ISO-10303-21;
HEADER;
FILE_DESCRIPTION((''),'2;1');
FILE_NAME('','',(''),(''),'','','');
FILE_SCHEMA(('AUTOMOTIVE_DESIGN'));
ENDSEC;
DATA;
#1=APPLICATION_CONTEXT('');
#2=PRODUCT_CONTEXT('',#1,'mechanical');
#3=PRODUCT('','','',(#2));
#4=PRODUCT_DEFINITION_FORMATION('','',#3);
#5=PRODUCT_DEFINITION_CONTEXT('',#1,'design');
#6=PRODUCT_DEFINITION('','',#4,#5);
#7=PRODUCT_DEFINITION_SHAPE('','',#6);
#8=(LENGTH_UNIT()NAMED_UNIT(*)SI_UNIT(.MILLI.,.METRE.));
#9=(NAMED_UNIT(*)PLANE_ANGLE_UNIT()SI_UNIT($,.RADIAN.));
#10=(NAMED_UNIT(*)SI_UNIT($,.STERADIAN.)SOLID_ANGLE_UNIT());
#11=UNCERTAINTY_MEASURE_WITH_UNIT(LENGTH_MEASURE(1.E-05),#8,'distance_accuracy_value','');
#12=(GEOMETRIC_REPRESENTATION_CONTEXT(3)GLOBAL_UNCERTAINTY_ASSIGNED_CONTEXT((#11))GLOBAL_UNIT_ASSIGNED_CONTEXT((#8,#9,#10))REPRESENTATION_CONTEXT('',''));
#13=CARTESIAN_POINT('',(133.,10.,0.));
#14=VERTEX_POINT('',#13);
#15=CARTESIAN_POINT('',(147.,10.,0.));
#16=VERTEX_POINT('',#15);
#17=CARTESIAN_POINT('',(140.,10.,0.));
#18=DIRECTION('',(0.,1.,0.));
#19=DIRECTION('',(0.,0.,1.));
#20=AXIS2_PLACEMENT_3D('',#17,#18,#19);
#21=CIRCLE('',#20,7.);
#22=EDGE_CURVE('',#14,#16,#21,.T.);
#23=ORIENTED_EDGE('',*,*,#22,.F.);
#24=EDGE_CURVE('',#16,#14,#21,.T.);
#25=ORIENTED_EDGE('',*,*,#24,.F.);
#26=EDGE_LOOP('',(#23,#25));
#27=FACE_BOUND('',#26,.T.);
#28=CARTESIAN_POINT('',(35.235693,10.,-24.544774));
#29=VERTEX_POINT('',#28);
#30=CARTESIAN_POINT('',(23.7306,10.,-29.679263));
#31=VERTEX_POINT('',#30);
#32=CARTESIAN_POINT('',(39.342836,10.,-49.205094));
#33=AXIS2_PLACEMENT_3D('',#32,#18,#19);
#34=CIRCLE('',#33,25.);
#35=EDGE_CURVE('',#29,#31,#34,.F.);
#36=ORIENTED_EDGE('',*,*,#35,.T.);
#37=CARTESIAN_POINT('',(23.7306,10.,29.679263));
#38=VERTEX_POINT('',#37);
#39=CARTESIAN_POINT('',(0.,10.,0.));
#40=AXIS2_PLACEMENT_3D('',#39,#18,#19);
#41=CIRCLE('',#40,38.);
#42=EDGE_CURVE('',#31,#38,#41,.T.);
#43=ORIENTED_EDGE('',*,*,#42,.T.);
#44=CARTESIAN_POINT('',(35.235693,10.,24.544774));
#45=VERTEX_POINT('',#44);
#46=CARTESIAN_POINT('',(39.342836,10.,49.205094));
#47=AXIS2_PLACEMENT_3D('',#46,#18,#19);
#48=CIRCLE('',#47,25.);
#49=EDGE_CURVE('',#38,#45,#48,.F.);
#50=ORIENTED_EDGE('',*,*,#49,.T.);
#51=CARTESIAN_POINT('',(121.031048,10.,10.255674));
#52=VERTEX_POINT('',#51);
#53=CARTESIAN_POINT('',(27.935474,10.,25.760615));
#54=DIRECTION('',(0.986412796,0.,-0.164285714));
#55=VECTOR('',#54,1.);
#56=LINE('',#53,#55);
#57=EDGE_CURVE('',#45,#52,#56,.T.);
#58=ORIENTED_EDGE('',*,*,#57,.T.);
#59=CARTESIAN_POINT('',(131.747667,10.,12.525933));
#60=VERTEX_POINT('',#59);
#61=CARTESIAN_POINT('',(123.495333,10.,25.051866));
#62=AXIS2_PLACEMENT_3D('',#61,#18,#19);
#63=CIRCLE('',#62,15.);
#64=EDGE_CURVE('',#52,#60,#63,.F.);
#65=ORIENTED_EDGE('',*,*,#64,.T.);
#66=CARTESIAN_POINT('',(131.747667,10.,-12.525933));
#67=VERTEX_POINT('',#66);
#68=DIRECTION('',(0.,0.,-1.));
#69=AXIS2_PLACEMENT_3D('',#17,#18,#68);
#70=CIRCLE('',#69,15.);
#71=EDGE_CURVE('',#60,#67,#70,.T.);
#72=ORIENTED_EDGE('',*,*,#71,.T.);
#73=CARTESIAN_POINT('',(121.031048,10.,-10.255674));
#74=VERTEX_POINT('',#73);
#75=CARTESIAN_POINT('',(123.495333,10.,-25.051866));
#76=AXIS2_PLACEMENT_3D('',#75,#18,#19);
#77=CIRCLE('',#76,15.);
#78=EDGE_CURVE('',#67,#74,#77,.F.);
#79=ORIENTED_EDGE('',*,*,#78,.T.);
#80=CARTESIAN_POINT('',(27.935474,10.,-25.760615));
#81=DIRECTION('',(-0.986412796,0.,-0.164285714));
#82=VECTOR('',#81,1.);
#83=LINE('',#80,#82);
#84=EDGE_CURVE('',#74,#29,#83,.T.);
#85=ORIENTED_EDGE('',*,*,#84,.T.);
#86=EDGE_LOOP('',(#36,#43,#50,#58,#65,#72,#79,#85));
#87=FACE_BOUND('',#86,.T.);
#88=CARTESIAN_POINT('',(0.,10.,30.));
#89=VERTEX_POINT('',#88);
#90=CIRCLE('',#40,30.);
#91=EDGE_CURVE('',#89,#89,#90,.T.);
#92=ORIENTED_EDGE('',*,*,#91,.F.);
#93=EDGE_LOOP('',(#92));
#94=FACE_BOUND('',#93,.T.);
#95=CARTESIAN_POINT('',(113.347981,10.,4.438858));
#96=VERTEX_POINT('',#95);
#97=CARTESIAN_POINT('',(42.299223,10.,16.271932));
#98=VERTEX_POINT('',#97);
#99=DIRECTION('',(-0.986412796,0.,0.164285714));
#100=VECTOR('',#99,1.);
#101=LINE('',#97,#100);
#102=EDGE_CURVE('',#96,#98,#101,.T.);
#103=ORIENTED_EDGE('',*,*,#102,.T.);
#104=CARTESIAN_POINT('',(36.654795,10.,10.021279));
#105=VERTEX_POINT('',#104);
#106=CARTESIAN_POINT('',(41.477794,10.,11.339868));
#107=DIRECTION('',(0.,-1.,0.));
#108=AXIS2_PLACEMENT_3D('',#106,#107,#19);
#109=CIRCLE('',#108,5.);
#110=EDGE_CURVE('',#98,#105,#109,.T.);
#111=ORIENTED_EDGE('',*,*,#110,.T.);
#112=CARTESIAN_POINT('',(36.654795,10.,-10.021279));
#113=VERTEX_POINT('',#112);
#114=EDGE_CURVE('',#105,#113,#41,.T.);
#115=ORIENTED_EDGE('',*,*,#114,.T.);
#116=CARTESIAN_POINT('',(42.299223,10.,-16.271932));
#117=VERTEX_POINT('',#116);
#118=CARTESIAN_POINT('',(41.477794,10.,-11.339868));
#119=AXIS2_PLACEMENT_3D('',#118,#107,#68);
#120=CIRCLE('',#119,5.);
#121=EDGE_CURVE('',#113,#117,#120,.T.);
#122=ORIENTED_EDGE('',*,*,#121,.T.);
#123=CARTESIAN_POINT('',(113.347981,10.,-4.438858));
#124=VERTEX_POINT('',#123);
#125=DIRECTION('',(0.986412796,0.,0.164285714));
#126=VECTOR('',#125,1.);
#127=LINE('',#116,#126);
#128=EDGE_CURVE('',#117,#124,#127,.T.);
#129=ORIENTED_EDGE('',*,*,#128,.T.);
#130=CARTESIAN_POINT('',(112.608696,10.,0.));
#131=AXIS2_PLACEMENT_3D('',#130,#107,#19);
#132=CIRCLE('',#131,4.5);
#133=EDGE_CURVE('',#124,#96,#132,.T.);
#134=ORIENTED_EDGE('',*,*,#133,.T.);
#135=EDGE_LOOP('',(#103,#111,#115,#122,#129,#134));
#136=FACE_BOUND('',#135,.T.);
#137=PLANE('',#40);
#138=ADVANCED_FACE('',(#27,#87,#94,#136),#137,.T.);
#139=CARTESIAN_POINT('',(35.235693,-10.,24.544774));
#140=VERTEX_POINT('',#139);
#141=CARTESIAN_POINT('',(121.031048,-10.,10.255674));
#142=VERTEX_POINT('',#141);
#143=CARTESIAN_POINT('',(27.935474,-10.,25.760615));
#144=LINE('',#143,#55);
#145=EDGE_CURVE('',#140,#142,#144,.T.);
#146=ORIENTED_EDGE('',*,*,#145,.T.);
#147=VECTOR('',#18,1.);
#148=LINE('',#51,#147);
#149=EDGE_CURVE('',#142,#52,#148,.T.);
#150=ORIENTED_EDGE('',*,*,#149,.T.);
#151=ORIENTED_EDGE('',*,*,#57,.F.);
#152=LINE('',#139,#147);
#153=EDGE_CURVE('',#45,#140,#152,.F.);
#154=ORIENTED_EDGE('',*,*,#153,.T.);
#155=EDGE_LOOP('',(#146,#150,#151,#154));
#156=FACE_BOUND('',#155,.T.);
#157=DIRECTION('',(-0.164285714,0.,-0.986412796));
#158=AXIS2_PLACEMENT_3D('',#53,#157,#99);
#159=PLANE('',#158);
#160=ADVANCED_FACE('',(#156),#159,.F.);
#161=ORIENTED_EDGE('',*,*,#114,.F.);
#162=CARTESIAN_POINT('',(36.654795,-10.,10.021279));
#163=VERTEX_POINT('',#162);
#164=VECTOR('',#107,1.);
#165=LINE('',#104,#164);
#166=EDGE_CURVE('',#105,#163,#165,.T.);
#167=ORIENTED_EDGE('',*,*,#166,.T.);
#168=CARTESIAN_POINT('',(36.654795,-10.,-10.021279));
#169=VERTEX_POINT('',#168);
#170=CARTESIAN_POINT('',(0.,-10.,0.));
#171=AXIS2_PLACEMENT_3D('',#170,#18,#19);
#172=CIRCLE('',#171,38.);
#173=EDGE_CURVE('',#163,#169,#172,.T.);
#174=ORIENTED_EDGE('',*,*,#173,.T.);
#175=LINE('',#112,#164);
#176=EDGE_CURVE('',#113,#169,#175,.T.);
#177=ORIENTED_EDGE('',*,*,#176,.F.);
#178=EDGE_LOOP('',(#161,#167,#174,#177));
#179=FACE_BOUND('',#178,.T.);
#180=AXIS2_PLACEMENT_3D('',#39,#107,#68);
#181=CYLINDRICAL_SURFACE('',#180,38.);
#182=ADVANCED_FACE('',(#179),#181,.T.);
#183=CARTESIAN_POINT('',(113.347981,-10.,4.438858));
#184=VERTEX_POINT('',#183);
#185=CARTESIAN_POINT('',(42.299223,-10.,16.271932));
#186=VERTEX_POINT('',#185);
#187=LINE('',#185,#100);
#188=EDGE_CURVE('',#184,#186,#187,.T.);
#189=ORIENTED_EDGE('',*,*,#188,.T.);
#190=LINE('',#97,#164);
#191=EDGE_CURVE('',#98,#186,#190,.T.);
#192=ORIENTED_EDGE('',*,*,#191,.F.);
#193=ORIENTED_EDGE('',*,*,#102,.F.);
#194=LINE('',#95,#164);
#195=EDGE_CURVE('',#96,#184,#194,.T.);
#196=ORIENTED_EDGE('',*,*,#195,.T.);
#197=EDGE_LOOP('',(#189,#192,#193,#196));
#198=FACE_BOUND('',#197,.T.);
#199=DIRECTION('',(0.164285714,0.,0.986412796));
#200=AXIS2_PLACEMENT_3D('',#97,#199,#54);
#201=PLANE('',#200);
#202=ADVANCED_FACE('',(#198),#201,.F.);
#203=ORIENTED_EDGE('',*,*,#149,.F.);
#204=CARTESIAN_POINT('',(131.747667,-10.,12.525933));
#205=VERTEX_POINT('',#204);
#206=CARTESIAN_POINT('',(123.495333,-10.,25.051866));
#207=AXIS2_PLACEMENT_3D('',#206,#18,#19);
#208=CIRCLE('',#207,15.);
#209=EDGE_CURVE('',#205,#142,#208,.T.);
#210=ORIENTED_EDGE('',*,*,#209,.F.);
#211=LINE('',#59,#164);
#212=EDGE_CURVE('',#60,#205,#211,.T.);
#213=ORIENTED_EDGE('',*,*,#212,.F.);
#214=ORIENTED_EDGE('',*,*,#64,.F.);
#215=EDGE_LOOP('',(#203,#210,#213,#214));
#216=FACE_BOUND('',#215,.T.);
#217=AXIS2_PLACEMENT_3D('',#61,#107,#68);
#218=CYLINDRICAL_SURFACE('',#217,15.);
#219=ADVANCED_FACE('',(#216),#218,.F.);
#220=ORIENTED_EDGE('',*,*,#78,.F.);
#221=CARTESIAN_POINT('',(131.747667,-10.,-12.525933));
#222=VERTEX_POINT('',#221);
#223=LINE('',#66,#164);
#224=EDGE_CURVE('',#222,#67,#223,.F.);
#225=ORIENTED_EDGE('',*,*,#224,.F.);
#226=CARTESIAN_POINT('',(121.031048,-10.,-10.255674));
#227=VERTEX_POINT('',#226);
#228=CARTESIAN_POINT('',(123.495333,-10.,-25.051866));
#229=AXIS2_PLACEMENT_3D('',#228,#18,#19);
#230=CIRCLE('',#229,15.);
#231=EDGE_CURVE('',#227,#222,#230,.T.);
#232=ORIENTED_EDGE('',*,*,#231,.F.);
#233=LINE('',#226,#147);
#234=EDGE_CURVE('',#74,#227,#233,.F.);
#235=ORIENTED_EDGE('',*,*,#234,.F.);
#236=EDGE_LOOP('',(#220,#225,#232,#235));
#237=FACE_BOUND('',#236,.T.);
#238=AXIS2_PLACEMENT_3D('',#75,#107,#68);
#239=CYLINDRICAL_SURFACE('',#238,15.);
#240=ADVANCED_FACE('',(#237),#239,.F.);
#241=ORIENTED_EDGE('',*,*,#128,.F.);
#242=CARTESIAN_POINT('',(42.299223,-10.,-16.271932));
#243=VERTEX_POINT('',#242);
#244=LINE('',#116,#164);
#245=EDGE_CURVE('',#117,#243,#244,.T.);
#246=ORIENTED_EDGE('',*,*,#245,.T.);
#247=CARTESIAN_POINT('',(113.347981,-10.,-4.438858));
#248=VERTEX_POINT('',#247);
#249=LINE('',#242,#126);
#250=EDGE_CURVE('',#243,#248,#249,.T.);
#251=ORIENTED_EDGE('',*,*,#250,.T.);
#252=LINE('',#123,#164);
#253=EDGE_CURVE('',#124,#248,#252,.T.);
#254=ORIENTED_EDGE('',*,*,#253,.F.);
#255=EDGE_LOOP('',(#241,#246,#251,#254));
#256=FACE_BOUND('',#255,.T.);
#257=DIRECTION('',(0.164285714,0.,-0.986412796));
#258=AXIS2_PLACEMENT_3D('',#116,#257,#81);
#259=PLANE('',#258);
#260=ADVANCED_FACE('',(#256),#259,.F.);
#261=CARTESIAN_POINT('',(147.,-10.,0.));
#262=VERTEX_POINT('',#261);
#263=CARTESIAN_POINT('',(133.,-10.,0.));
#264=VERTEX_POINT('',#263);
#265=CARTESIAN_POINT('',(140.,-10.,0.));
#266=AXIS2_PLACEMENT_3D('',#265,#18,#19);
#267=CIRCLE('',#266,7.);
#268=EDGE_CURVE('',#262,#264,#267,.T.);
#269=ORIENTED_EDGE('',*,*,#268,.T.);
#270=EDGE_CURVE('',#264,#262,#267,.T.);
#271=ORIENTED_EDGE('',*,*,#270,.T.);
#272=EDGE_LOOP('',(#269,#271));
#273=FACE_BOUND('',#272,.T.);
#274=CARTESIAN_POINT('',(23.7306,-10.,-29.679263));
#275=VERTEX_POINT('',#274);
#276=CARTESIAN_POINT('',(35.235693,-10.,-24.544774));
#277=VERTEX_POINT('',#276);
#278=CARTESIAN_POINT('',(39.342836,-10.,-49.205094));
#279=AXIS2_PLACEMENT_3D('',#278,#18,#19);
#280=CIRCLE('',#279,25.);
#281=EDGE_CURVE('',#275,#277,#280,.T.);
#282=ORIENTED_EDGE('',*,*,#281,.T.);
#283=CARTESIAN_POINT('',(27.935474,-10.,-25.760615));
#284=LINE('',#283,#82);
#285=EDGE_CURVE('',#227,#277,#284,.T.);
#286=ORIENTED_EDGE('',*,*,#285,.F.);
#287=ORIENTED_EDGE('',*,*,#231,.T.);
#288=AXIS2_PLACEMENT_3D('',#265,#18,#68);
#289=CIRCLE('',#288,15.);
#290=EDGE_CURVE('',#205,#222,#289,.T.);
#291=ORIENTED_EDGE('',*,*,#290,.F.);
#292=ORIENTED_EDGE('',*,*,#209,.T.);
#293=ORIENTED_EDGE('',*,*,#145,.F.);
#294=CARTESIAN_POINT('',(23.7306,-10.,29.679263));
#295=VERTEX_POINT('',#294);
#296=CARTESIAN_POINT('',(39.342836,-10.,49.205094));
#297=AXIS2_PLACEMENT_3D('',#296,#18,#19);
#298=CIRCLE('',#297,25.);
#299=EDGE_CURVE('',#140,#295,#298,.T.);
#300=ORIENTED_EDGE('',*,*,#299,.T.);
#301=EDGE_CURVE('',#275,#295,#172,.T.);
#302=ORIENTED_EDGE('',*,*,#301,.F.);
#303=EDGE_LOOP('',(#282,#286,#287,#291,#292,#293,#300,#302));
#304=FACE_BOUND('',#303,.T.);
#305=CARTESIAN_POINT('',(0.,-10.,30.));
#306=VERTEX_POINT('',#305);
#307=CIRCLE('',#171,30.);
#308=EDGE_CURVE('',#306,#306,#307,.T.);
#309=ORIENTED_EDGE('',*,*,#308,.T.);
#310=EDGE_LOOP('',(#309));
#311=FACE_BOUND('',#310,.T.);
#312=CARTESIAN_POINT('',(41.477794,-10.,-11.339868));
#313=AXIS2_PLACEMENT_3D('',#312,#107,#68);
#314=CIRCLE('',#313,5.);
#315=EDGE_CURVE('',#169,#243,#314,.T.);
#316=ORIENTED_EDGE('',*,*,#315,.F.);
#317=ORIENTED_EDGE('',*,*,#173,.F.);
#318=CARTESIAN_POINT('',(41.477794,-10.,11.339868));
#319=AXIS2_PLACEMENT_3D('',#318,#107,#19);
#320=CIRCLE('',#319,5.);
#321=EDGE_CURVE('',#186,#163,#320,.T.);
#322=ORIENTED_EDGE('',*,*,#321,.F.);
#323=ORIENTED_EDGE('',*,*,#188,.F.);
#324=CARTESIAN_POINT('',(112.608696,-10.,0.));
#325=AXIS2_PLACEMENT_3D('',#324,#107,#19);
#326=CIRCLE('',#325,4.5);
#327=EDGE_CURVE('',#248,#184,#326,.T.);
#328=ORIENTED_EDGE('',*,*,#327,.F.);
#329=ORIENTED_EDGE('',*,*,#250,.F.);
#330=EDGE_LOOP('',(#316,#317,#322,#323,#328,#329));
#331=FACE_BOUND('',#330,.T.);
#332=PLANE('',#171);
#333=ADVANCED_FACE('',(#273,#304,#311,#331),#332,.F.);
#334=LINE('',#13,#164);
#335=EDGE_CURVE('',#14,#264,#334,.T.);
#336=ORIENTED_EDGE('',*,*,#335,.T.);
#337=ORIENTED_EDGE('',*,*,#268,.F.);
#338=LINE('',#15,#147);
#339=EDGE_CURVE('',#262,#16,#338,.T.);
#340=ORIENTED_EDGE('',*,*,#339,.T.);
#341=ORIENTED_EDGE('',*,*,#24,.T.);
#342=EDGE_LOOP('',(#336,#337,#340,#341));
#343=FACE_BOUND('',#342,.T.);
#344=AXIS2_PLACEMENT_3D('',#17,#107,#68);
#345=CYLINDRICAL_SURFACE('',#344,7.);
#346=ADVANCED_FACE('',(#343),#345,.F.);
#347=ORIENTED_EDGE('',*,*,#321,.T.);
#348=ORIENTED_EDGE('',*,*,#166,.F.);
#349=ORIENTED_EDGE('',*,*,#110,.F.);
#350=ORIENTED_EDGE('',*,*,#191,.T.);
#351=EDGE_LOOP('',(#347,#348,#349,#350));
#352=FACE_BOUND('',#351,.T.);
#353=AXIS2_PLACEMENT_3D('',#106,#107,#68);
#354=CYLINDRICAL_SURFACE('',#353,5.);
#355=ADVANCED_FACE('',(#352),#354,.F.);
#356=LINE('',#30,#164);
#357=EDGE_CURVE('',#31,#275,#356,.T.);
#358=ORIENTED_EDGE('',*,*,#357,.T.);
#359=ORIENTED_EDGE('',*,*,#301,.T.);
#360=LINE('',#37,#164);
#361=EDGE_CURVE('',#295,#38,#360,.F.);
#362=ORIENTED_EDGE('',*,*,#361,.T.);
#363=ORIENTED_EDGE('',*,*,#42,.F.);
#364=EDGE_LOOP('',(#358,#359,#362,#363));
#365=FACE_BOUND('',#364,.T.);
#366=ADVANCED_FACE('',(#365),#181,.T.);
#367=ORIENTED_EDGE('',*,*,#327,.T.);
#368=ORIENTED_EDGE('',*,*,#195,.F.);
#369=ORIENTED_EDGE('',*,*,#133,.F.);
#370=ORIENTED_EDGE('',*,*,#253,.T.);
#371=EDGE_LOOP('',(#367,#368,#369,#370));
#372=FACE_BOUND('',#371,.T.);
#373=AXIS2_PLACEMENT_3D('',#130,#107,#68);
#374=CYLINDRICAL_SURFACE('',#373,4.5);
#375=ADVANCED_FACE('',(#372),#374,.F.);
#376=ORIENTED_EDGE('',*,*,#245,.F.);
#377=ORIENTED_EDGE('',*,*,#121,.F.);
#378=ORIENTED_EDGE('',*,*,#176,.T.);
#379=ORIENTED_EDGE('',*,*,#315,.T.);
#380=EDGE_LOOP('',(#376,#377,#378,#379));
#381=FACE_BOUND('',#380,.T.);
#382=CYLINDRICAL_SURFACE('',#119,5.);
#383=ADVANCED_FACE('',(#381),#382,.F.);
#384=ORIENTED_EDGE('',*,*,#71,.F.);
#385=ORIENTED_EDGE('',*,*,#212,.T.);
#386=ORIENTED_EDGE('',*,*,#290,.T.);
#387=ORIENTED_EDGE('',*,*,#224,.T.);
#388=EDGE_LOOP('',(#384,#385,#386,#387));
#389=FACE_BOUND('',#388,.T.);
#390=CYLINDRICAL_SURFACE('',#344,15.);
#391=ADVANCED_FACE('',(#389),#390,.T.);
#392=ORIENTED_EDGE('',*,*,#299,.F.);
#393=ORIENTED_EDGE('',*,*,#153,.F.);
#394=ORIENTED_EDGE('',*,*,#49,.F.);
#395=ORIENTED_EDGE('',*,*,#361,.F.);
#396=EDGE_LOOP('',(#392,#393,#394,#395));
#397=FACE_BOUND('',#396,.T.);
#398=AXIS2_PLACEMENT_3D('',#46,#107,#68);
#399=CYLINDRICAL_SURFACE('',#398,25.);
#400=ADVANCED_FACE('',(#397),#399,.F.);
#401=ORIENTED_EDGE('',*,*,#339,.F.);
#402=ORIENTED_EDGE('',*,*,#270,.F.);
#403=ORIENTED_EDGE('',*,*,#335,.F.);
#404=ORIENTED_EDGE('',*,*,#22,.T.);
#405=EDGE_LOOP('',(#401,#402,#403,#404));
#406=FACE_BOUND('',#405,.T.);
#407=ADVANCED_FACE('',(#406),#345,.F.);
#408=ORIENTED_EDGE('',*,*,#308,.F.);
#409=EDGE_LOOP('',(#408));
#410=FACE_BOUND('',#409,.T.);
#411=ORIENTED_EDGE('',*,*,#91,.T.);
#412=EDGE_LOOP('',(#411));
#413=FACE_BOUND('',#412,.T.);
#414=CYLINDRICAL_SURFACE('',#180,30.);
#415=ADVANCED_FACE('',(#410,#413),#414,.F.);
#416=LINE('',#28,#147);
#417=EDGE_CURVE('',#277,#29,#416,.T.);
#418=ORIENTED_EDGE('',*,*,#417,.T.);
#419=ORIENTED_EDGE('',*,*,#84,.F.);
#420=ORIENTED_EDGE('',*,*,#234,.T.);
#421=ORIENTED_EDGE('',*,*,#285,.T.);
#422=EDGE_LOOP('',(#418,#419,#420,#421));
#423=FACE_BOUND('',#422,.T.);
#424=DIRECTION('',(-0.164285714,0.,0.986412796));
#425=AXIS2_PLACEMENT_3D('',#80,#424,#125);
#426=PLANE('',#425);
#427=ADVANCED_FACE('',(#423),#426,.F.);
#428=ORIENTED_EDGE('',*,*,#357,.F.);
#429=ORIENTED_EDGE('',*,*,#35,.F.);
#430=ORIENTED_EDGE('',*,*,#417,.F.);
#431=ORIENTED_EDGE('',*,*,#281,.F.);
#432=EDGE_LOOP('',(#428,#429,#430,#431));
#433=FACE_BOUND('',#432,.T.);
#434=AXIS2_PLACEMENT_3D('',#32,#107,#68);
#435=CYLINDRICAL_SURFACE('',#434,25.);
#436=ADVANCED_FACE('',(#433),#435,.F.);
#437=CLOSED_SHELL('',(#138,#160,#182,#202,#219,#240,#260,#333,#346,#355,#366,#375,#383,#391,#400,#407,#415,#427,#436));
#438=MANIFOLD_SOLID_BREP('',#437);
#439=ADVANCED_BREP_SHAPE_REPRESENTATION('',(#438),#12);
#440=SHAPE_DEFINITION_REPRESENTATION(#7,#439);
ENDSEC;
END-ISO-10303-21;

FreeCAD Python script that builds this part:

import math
import FreeCAD as App
import Part
import Sketcher

V = App.Vector


def edges_at(feature, points):
    """Names of the edges that pass closest to the given points."""
    edges = feature.Shape.Edges
    near = lambda p: min(range(len(edges)), key=lambda i: edges[i].distToShape(Part.Vertex(*p))[0])
    return sorted({f"Edge{near(p) + 1}" for p in points})

doc = App.newDocument("Part")
params = doc.addObject("Spreadsheet::Sheet", "Params")
for row, (alias, value) in enumerate([
    ("sketch1_diameter", "14 mm"),
    ("sketch1_diameter2", "60 mm"),
    ("sketch1_radius", "38 mm"),
    ("sketch1_radius2", "15 mm"),
    ("pad1_length", "20 mm"),
    ("fillet_radius", "15 mm"),
    ("fillet2_radius", "25 mm"),
    ("sketch2_radius", "5 mm"),
    ("sketch2_radius2", "38 mm"),
    ("sketch2_radius3", "4.5 mm"),
], start=1):
    params.set(f"A{row}", alias)
    params.set(f"B{row}", "=" + value)
    params.setAlias(f"B{row}", alias)

body = doc.addObject("PartDesign::Body", "Body")

# Sketch on XZ plane
sketch1 = body.newObject("Sketcher::SketchObject", "Sketch")
sketch1.AttachmentSupport = (doc.getObject("XZ_Plane"), [""])
sketch1.MapMode = "FlatFace"
sketch1.addGeometry(Part.LineSegment(V(128, -9, 0), V(28, -26, 0)), False)
sketch1.addGeometry(Part.ArcOfCircle(Part.Circle(V(0, 0, 0), V(0, 0, 1), 38), math.radians(43), math.radians(317)), False)
sketch1.addGeometry(Part.LineSegment(V(28, 26, 0), V(128, 9, 0)), False)
sketch1.addGeometry(Part.ArcOfCircle(Part.Circle(V(140, 0, 0), V(0, 0, 1), 15), math.radians(-143), math.radians(143)), False)
sketch1.addGeometry(Part.Circle(V(140, 0, 0), V(0, 0, 1), 7), False)
sketch1.addGeometry(Part.Circle(V(0, 0, 0), V(0, 0, 1), 30), False)
sketch1.addConstraint(Sketcher.Constraint("Coincident", 0, 2, 1, 2))
sketch1.addConstraint(Sketcher.Constraint("Coincident", 1, 1, 2, 1))
sketch1.addConstraint(Sketcher.Constraint("Coincident", 2, 2, 3, 2))
sketch1.addConstraint(Sketcher.Constraint("Coincident", 3, 1, 0, 1))
sketch1.addConstraint(Sketcher.Constraint("Coincident", 1, 3, -1, 1))
sketch1.addConstraint(Sketcher.Constraint("Coincident", 5, 3, -1, 1))
sketch1.addConstraint(Sketcher.Constraint("Coincident", 4, 3, 3, 3))
sketch1.addConstraint(Sketcher.Constraint("Symmetric", 2, 2, 3, 1, -1))
sketch1.addConstraint(Sketcher.Constraint("Vertical", 0, 2, 1, 1))
sketch1.addConstraint(Sketcher.Constraint("Diameter", 4, 14.0))
sketch1.addConstraint(Sketcher.Constraint("Diameter", 5, 60.0))
sketch1.addConstraint(Sketcher.Constraint("Radius", 1, 38.0))
sketch1.addConstraint(Sketcher.Constraint("Radius", 3, 15.0))
sketch1.addConstraint(Sketcher.Constraint("DistanceX", -1, 1, 3, 3, 140.0))
sketch1.addConstraint(Sketcher.Constraint("DistanceY", 0, 2, 2, 2, 34.845001))
sketch1.addConstraint(Sketcher.Constraint("DistanceY", 0, 2, 1, 1, 51.521231))
sketch1.setExpression("Constraints[9]", "Params.sketch1_diameter")
sketch1.setExpression("Constraints[10]", "Params.sketch1_diameter2")
sketch1.setExpression("Constraints[11]", "Params.sketch1_radius")
sketch1.setExpression("Constraints[12]", "Params.sketch1_radius2")
pad1 = body.newObject("PartDesign::Pad", "Pad")
pad1.Profile = sketch1
pad1.setExpression("Length", "Params.pad1_length")
pad1.Midplane = True
doc.recompute()

fillet = body.newObject("PartDesign::Fillet", "Fillet")
fillet.Base = (pad1, edges_at(pad1, [(128.064, 0, -9.084), (128.064, 0, 9.084)]))
fillet.setExpression("Radius", "Params.fillet_radius")
doc.recompute()

fillet2 = body.newObject("PartDesign::Fillet", "Fillet001")
fillet2.Base = (fillet, edges_at(fillet, [(27.935, 0, -25.761), (27.935, 0, 25.761)]))
fillet2.setExpression("Radius", "Params.fillet2_radius")

# Sketch on XZ plane
sketch2 = body.newObject("Sketcher::SketchObject", "Sketch001")
sketch2.AttachmentSupport = (doc.getObject("XZ_Plane"), [""])
sketch2.MapMode = "FlatFace"
sketch2.AttachmentOffset = App.Placement(V(0, 0, 10), App.Rotation())
sketch2.addGeometry(Part.LineSegment(V(113.3, 4.4, 0), V(42.3, 16.3, 0)), False)
sketch2.addGeometry(Part.ArcOfCircle(Part.Circle(V(41.5, 11.3, 0), V(0, 0, 1), 5), math.radians(81), math.radians(195)), False)
sketch2.addGeometry(Part.ArcOfCircle(Part.Circle(V(0, 0, 0), V(0, 0, 1), 38), math.radians(-15), math.radians(15)), False)
sketch2.addGeometry(Part.ArcOfCircle(Part.Circle(V(41.5, -11.3, 0), V(0, 0, 1), 5), math.radians(165), math.radians(279)), False)
sketch2.addGeometry(Part.LineSegment(V(42.3, -16.3, 0), V(113.3, -4.4, 0)), False)
sketch2.addGeometry(Part.ArcOfCircle(Part.Circle(V(112.6, 0, 0), V(0, 0, 1), 4.5), math.radians(-81), math.radians(81)), False)
sketch2.addConstraint(Sketcher.Constraint("Tangent", 0, 2, 1, 1))
sketch2.addConstraint(Sketcher.Constraint("Tangent", 1, 2, 2, 2))
sketch2.addConstraint(Sketcher.Constraint("Tangent", 2, 1, 3, 1))
sketch2.addConstraint(Sketcher.Constraint("Tangent", 3, 2, 4, 1))
sketch2.addConstraint(Sketcher.Constraint("Tangent", 4, 2, 5, 1))
sketch2.addConstraint(Sketcher.Constraint("Tangent", 5, 2, 0, 1))
sketch2.addConstraint(Sketcher.Constraint("Coincident", 2, 3, -1, 1))
sketch2.addConstraint(Sketcher.Constraint("Equal", 1, 3))
sketch2.addConstraint(Sketcher.Constraint("Symmetric", 0, 2, 3, 2, -1))
sketch2.addConstraint(Sketcher.Constraint("Radius", 1, 5.0))
sketch2.addConstraint(Sketcher.Constraint("Radius", 2, 38.0))
sketch2.addConstraint(Sketcher.Constraint("Radius", 5, 4.5))
sketch2.addConstraint(Sketcher.Constraint("DistanceX", 1, 2, 1, 3, 4.822999))
sketch2.addConstraint(Sketcher.Constraint("DistanceX", 1, 3, 5, 3, 71.130902))
sketch2.setExpression("Constraints[9]", "Params.sketch2_radius")
sketch2.setExpression("Constraints[10]", "Params.sketch2_radius2")
sketch2.setExpression("Constraints[11]", "Params.sketch2_radius3")
pocket1 = body.newObject("PartDesign::Pocket", "Pocket")
pocket1.Profile = sketch2
pocket1.Type = "ThroughAll"

doc.recompute()
